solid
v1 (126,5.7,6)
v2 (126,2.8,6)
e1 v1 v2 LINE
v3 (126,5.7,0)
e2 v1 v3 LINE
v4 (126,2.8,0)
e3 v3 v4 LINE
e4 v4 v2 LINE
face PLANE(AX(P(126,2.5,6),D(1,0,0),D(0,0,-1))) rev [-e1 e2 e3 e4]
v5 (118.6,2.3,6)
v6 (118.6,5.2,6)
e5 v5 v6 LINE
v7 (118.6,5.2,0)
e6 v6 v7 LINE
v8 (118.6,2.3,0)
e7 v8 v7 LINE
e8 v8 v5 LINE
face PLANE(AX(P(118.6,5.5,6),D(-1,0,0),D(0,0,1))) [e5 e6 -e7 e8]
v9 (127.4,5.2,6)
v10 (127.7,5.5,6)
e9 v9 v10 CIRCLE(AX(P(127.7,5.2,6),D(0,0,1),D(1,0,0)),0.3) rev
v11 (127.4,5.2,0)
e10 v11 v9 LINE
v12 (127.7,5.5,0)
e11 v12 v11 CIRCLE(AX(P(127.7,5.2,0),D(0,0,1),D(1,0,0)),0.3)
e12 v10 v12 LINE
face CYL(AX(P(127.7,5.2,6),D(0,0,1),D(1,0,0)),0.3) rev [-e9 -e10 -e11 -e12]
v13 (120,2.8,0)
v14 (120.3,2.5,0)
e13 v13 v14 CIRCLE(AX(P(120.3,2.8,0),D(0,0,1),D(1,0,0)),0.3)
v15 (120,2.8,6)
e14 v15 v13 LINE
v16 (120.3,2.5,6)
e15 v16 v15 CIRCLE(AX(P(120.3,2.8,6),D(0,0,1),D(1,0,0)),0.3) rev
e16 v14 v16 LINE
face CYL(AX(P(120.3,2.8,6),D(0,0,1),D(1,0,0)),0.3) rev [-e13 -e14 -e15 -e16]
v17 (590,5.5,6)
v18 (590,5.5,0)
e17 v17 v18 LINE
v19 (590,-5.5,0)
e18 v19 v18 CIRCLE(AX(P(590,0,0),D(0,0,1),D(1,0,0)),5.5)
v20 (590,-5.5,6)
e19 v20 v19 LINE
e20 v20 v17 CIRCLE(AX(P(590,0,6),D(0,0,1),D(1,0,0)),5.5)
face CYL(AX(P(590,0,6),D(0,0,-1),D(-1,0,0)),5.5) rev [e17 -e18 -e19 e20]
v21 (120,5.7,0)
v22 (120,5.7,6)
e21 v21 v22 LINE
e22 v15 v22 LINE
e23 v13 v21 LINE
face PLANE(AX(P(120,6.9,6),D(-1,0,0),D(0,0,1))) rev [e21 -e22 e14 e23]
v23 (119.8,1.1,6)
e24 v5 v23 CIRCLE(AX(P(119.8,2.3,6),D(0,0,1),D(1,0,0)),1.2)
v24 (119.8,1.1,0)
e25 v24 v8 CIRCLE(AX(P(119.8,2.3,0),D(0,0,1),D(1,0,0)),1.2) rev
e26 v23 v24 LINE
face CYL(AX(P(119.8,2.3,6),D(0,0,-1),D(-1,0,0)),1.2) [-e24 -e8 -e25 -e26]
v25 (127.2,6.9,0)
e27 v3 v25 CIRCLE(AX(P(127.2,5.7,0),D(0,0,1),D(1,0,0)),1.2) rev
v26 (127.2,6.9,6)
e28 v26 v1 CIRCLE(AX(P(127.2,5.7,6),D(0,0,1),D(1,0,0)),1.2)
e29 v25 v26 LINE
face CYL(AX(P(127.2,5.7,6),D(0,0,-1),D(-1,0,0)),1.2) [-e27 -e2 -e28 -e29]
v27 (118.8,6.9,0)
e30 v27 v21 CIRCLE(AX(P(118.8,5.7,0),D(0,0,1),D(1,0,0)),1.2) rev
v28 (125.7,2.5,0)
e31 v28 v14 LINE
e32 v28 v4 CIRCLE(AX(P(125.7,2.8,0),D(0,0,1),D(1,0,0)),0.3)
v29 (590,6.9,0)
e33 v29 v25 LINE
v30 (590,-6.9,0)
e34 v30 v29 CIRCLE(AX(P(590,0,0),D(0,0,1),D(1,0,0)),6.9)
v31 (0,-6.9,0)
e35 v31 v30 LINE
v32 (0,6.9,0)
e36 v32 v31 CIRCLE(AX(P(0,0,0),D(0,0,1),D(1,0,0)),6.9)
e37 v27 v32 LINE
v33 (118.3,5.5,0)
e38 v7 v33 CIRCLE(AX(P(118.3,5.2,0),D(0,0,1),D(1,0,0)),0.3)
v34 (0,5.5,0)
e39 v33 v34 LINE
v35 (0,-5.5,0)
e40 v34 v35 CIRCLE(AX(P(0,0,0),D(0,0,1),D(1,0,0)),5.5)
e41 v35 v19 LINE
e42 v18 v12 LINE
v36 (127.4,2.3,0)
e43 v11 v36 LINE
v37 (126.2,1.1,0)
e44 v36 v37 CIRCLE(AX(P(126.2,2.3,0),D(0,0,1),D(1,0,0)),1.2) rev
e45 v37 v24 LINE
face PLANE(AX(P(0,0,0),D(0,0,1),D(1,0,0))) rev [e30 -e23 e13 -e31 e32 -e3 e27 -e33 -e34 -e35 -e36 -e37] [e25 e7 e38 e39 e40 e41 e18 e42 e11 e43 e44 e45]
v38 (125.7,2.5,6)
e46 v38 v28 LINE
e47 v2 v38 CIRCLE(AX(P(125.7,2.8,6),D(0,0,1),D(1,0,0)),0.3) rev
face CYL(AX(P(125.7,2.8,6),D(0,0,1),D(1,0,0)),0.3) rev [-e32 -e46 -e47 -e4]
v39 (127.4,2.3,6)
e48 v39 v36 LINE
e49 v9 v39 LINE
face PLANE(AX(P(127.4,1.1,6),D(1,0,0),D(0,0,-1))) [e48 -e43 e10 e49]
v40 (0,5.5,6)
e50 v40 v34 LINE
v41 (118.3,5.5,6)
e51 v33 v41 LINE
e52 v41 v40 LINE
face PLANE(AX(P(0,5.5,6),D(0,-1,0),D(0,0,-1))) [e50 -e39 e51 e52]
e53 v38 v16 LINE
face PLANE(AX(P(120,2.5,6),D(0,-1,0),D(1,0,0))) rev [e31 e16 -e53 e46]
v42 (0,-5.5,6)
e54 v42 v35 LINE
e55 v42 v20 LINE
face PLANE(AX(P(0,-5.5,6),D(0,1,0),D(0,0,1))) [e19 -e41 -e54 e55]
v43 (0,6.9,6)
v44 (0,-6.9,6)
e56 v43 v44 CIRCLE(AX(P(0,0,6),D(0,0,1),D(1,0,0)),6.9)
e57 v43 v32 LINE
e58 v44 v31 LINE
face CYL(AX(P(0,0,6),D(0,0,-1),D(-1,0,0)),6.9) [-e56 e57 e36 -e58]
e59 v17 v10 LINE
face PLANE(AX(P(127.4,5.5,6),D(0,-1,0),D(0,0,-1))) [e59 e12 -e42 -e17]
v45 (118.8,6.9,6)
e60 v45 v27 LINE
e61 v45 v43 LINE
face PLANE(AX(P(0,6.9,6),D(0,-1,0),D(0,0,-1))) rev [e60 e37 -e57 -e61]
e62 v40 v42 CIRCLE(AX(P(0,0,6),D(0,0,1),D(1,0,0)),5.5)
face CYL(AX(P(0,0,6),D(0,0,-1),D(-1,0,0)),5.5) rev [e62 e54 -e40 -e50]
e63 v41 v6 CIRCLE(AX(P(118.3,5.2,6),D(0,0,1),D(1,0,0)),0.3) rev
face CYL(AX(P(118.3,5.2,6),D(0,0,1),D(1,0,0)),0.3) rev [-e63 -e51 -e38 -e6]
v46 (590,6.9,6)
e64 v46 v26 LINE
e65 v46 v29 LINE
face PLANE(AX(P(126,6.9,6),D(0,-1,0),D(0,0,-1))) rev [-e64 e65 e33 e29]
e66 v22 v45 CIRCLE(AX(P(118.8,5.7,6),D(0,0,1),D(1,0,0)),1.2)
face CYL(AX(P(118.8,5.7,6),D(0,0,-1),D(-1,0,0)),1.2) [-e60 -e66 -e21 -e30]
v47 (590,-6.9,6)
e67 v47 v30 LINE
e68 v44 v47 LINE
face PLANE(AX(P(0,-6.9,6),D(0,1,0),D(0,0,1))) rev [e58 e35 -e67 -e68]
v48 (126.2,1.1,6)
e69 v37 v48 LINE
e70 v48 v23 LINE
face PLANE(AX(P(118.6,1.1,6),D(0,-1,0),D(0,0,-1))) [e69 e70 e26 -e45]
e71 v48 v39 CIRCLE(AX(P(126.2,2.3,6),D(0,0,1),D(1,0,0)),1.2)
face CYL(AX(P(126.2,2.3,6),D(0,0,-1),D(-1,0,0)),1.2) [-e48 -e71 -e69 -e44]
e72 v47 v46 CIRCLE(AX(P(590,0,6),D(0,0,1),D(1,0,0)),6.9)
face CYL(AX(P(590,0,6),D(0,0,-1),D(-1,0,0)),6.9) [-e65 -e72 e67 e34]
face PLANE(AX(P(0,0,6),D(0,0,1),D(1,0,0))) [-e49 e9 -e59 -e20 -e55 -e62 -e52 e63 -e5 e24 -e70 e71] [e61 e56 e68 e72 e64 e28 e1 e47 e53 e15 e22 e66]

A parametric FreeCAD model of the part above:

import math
import FreeCAD as App
import Part
import Sketcher

V = App.Vector
Q = App.Units.Quantity


def edges_at(feature, points):
    """Names of the edges that pass closest to the given points."""
    edges = feature.Shape.Edges
    near = lambda p: min(range(len(edges)), key=lambda i: edges[i].distToShape(Part.Vertex(*p))[0])
    return sorted({f"Edge{near(p) + 1}" for p in points})

doc = App.newDocument("Part")
body = doc.addObject("PartDesign::Body", "Body")

# Sketch on XY plane
sketch1 = body.newObject("Sketcher::SketchObject", "Sketch")
sketch1.AttachmentSupport = (doc.getObject("XY_Plane"), [""])
sketch1.MapMode = "FlatFace"
sketch1.addGeometry([
    Part.LineSegment(V(120, 6.9, 0), V(0, 6.9, 0)),  # 0
    Part.ArcOfCircle(Part.Circle(V(0, 0, 0), V(0, 0, 1), 6.9), math.radians(90), math.radians(270)),  # 1
    Part.LineSegment(V(0, -6.9, 0), V(590, -6.9, 0)),  # 2
    Part.ArcOfCircle(Part.Circle(V(590, 0, 0), V(0, 0, 1), 6.9), math.radians(-90), math.radians(90)),  # 3
    Part.LineSegment(V(590, 6.9, 0), V(126, 6.9, 0)),  # 4
    Part.LineSegment(V(126, 6.9, 0), V(126, 2.5, 0)),  # 5
    Part.LineSegment(V(126, 2.5, 0), V(120, 2.5, 0)),  # 6
    Part.LineSegment(V(120, 2.5, 0), V(120, 6.9, 0)),  # 7
    Part.LineSegment(V(0, 5.5, 0), V(118.6, 5.5, 0)),  # 8
    Part.LineSegment(V(118.6, 5.5, 0), V(118.6, 1.1, 0)),  # 9
    Part.LineSegment(V(118.6, 1.1, 0), V(127.4, 1.1, 0)),  # 10
    Part.LineSegment(V(127.4, 1.1, 0), V(127.4, 5.5, 0)),  # 11
    Part.LineSegment(V(127.4, 5.5, 0), V(590, 5.5, 0)),  # 12
    Part.ArcOfCircle(Part.Circle(V(590, 0, 0), V(0, 0, 1), 5.5), math.radians(-90), math.radians(90)),  # 13
    Part.LineSegment(V(590, -5.5, 0), V(0, -5.5, 0)),  # 14
    Part.ArcOfCircle(Part.Circle(V(0, 0, 0), V(0, 0, 1), 5.5), math.radians(90), math.radians(270)),  # 15
], False)
sketch1.addConstraint([
    Sketcher.Constraint("Tangent", 0, 2, 1, 1),
    Sketcher.Constraint("Tangent", 1, 2, 2, 1),
    Sketcher.Constraint("Tangent", 2, 2, 3, 1),
    Sketcher.Constraint("Tangent", 3, 2, 4, 1),
    Sketcher.Constraint("Coincident", 4, 2, 5, 1),
    Sketcher.Constraint("Coincident", 5, 2, 6, 1),
    Sketcher.Constraint("Coincident", 6, 2, 7, 1),
    Sketcher.Constraint("Coincident", 7, 2, 0, 1),
    Sketcher.Constraint("Coincident", 8, 2, 9, 1),
    Sketcher.Constraint("Coincident", 9, 2, 10, 1),
    Sketcher.Constraint("Coincident", 10, 2, 11, 1),
    Sketcher.Constraint("Coincident", 11, 2, 12, 1),
    Sketcher.Constraint("Tangent", 12, 2, 13, 2),
    Sketcher.Constraint("Tangent", 13, 1, 14, 1),
    Sketcher.Constraint("Tangent", 14, 2, 15, 2),
    Sketcher.Constraint("Tangent", 15, 1, 8, 1),
    Sketcher.Constraint("Horizontal", 0),
    Sketcher.Constraint("Horizontal", 2),
    Sketcher.Constraint("Horizontal", 4),
    Sketcher.Constraint("Vertical", 5),
    Sketcher.Constraint("Horizontal", 6),
    Sketcher.Constraint("Vertical", 7),
    Sketcher.Constraint("Horizontal", 8),
    Sketcher.Constraint("Vertical", 9),
    Sketcher.Constraint("Horizontal", 10),
    Sketcher.Constraint("Vertical", 11),
    Sketcher.Constraint("Horizontal", 12),
    Sketcher.Constraint("Horizontal", 14),
    Sketcher.Constraint("Coincident", 1, 3, -1, 1),
    Sketcher.Constraint("Coincident", 15, 3, -1, 1),
    Sketcher.Constraint("Coincident", 13, 3, 3, 3),
    Sketcher.Constraint("Equal", 1, 3),
    Sketcher.Constraint("Equal", 7, 9),
    Sketcher.Constraint("Radius", 1, Q("6.9 mm")),
    Sketcher.Constraint("Radius", 13, Q("5.5 mm")),
    Sketcher.Constraint("DistanceX", 0, 2, 0, 1, Q("120 mm")),
    Sketcher.Constraint("DistanceX", 2, 1, 2, 2, Q("590 mm")),
    Sketcher.Constraint("DistanceX", 4, 2, 4, 1, Q("464 mm")),
    Sketcher.Constraint("DistanceX", 8, 1, 8, 2, Q("118.6 mm")),
    Sketcher.Constraint("DistanceX", 10, 1, 10, 2, Q("8.8 mm")),
    Sketcher.Constraint("DistanceY", 5, 2, 5, 1, Q("4.4 mm")),
])
pad1 = body.newObject("PartDesign::Pad", "Pad")
pad1.Profile = sketch1
pad1.Length = 6
doc.recompute()

fillet = body.newObject("PartDesign::Fillet", "Fillet")
fillet.Base = (pad1, edges_at(pad1, [
    (120, 2.5, 3),
    (126, 2.5, 3),
    (127.4, 5.5, 3),
    (118.6, 5.5, 3),
]))
fillet.Radius = 0.3
doc.recompute()

fillet2 = body.newObject("PartDesign::Fillet", "Fillet001")
fillet2.Base = (fillet, edges_at(fillet, [
    (120, 6.9, 3),
    (126, 6.9, 3),
    (127.4, 1.1, 3),
    (118.6, 1.1, 3),
]))
fillet2.Radius = 1.2

doc.recompute()
